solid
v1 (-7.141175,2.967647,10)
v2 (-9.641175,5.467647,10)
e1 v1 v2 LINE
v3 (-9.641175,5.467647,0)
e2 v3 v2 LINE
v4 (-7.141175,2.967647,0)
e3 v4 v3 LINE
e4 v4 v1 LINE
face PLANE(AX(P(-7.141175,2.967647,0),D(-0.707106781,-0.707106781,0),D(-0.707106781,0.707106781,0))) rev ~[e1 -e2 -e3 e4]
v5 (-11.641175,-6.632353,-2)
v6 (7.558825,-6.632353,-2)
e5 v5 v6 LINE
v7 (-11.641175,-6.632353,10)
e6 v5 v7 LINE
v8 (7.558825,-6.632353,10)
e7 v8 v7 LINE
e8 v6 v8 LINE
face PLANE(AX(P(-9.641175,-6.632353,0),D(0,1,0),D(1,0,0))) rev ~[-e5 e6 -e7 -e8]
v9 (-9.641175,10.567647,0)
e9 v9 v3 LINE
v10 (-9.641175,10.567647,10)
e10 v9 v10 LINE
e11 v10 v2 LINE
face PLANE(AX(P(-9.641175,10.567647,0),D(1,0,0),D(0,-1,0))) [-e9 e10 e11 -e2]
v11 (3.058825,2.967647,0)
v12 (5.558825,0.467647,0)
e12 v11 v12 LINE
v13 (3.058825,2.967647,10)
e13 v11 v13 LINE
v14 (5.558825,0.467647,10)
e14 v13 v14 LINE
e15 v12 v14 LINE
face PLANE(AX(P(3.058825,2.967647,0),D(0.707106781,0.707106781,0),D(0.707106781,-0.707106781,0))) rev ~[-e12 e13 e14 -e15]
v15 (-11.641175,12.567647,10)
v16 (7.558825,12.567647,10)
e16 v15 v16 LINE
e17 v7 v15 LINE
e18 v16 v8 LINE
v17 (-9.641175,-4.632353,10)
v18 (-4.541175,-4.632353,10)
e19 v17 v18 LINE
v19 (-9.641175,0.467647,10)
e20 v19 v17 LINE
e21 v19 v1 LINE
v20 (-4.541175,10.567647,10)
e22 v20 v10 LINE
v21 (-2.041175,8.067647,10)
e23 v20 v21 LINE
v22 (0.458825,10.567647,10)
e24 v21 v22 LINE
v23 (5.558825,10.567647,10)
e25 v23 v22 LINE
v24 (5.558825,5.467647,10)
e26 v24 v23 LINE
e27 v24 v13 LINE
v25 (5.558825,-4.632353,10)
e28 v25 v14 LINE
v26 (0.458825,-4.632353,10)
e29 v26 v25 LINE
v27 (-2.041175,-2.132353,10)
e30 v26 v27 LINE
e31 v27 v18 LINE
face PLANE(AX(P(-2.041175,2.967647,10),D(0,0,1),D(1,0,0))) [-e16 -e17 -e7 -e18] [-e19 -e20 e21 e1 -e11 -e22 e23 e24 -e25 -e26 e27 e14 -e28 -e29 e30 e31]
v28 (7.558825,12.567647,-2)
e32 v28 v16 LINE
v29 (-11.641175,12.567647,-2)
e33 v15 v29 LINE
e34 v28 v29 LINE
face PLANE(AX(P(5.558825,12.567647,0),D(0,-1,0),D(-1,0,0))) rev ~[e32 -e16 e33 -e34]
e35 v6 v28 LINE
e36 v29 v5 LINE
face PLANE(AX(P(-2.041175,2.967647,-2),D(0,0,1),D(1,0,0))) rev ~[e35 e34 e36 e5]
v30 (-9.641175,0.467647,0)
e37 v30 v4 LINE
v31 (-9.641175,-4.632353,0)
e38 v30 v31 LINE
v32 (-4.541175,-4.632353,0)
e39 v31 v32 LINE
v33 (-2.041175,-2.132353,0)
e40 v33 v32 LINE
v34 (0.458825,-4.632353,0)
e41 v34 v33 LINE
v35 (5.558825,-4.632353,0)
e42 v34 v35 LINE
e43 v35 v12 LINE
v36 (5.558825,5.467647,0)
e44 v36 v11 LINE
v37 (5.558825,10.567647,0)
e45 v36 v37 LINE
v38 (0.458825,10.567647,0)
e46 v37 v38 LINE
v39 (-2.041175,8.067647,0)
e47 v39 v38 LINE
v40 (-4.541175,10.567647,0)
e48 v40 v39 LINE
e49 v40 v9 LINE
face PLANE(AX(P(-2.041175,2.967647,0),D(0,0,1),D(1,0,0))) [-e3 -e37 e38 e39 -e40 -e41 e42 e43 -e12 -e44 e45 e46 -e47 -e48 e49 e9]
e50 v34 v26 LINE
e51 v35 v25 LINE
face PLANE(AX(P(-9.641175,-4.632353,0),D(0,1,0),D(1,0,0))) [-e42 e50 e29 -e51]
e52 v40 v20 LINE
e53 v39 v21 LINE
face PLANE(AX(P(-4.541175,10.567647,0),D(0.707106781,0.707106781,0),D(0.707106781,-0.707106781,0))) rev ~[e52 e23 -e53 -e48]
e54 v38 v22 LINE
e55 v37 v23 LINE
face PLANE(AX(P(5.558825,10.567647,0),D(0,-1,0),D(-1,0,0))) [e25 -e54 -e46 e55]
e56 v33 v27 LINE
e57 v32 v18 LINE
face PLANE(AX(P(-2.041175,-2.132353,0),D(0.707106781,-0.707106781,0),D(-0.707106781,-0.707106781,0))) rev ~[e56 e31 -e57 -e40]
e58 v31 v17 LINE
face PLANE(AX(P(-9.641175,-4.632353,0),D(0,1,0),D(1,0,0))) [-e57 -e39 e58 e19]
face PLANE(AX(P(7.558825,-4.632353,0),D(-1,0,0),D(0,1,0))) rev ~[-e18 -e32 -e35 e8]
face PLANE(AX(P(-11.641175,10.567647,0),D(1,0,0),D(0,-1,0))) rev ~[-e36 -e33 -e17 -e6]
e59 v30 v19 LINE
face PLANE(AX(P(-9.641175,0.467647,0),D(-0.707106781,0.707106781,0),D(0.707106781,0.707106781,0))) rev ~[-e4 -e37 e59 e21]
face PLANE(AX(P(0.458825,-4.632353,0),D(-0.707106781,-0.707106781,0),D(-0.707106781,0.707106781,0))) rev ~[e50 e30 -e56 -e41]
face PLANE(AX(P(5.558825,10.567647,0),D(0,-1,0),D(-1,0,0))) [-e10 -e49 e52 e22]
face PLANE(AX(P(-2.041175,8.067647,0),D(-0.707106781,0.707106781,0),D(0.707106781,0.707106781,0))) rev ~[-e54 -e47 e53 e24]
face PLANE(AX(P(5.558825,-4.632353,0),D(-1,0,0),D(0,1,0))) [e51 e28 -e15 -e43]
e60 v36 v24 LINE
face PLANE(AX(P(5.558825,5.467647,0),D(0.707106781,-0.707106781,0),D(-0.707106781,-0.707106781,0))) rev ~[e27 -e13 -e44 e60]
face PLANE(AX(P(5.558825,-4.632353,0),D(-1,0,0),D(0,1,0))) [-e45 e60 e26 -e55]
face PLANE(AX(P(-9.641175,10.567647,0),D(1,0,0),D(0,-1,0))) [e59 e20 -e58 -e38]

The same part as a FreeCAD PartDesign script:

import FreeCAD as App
import Part
import Sketcher

V = App.Vector
Q = App.Units.Quantity


def faces_at(feature, points):
    """Names of the faces that lie closest to the given points."""
    faces = feature.Shape.Faces
    near = lambda p: min(range(len(faces)), key=lambda i: faces[i].distToShape(Part.Vertex(*p))[0])
    return sorted({f"Face{near(p) + 1}" for p in points})

doc = App.newDocument("Part")
body = doc.addObject("PartDesign::Body", "Body")

sketch1 = body.newObject("Sketcher::SketchObject", "Sketch")
sketch1.AttachmentSupport = (doc.getObject("XY_Plane"), [""])
sketch1.MapMode = "FlatFace"
sketch1.addGeometry([
    Part.LineSegment(V(-9.641175, 10.567647, 0), V(-9.641175, -4.632353, 0)),
    Part.LineSegment(V(-9.641175, -4.632353, 0), V(5.558825, -4.632353, 0)),
    Part.LineSegment(V(5.558825, -4.632353, 0), V(5.558825, 10.567647, 0)),
    Part.LineSegment(V(5.558825, 10.567647, 0), V(-9.641175, 10.567647, 0)),
], False)
sketch1.addConstraint([
    Sketcher.Constraint("Coincident", 0, 2, 1, 1),
    Sketcher.Constraint("Coincident", 1, 2, 2, 1),
    Sketcher.Constraint("Coincident", 2, 2, 3, 1),
    Sketcher.Constraint("Coincident", 3, 2, 0, 1),
    Sketcher.Constraint("Vertical", 0),
    Sketcher.Constraint("Horizontal", 1),
    Sketcher.Constraint("Vertical", 2),
    Sketcher.Constraint("Horizontal", 3),
    Sketcher.Constraint("Equal", 3, 0),
    Sketcher.Constraint("DistanceX", 1, 1, 1, 2, Q("15.2 mm")),
    Sketcher.Constraint("DistanceX", 0, 2, -1, 1, Q("9.641175 mm")),
    Sketcher.Constraint("DistanceY", 0, 2, -1, 1, Q("4.632353 mm")),
])
pad1 = body.newObject("PartDesign::Pad", "Pad")
pad1.Profile = sketch1
pad1.Length = 10
doc.recompute()

thickness = body.newObject("PartDesign::Thickness", "Thickness")
thickness.Base = (pad1, faces_at(pad1, [(-2.041, 2.968, 10)]))
thickness.Value = 2
thickness.Reversed = False
thickness.Join = "Intersection"

sketch2 = body.newObject("Sketcher::SketchObject", "Sketch001")
sketch2.AttachmentSupport = (doc.getObject("XY_Plane"), [""])
sketch2.MapMode = "FlatFace"
sketch2.addGeometry([
    Part.LineSegment(V(0.458825, 10.567647, 0), V(-4.541175, 10.567647, 0)),
    Part.LineSegment(V(-4.541175, 10.567647, 0), V(-2.041175, 8.067647, 0)),
    Part.LineSegment(V(-2.041175, 8.067647, 0), V(0.458825, 10.567647, 0)),
    Part.LineSegment(V(5.558825, 0.467647, 0), V(5.558825, 5.467647, 0)),
    Part.LineSegment(V(5.558825, 5.467647, 0), V(3.058825, 2.967647, 0)),
    Part.LineSegment(V(3.058825, 2.967647, 0), V(5.558825, 0.467647, 0)),
    Part.LineSegment(V(-7.141175, 2.967647, 0), V(-9.641175, 5.467647, 0)),
    Part.LineSegment(V(-9.641175, 5.467647, 0), V(-9.641175, 0.467647, 0)),
    Part.LineSegment(V(-9.641175, 0.467647, 0), V(-7.141175, 2.967647, 0)),
    Part.LineSegment(V(-2.041175, -2.132353, 0), V(-4.541175, -4.632353, 0)),
    Part.LineSegment(V(-4.541175, -4.632353, 0), V(0.458825, -4.632353, 0)),
    Part.LineSegment(V(0.458825, -4.632353, 0), V(-2.041175, -2.132353, 0)),
], False)
sketch2.addConstraint([
    Sketcher.Constraint("Coincident", 0, 2, 1, 1),
    Sketcher.Constraint("Coincident", 1, 2, 2, 1),
    Sketcher.Constraint("Coincident", 2, 2, 0, 1),
    Sketcher.Constraint("Coincident", 3, 2, 4, 1),
    Sketcher.Constraint("Coincident", 4, 2, 5, 1),
    Sketcher.Constraint("Coincident", 5, 2, 3, 1),
    Sketcher.Constraint("Coincident", 6, 2, 7, 1),
    Sketcher.Constraint("Coincident", 7, 2, 8, 1),
    Sketcher.Constraint("Coincident", 8, 2, 6, 1),
    Sketcher.Constraint("Coincident", 9, 2, 10, 1),
    Sketcher.Constraint("Coincident", 10, 2, 11, 1),
    Sketcher.Constraint("Coincident", 11, 2, 9, 1),
    Sketcher.Constraint("Horizontal", 0),
    Sketcher.Constraint("Vertical", 3),
    Sketcher.Constraint("Vertical", 7),
    Sketcher.Constraint("Horizontal", 10),
    Sketcher.Constraint("Perpendicular", 1, 2),
    Sketcher.Constraint("Parallel", 2, 4),
    Sketcher.Constraint("Perpendicular", 4, 5),
    Sketcher.Constraint("Parallel", 5, 6),
    Sketcher.Constraint("Perpendicular", 6, 8),
    Sketcher.Constraint("Parallel", 8, 9),
    Sketcher.Constraint("Perpendicular", 9, 11),
    Sketcher.Constraint("Horizontal", 3, 2, 6, 2),
    Sketcher.Constraint("Horizontal", 5, 2, 7, 2),
    Sketcher.Constraint("Horizontal", 4, 2, 8, 2),
    Sketcher.Constraint("Vertical", 0, 2, 9, 2),
    Sketcher.Constraint("Vertical", 2, 2, 10, 2),
    Sketcher.Constraint("Equal", 10, 3),
    Sketcher.Constraint("DistanceX", 0, 2, 0, 1, Q("5 mm")),
    Sketcher.Constraint("DistanceX", 2, 2, 3, 2, Q("5.1 mm")),
    Sketcher.Constraint("DistanceY", 3, 2, 2, 2, Q("5.1 mm")),
    Sketcher.Constraint("DistanceX", 6, 2, 0, 2, Q("5.1 mm")),
    Sketcher.Constraint("DistanceY", 9, 2, 7, 2, Q("5.1 mm")),
    Sketcher.Constraint("DistanceX", 0, 2, -1, 1, Q("4.541175 mm")),
    Sketcher.Constraint("DistanceY", -1, 1, 0, 2, Q("10.567647 mm")),
])
pad2 = body.newObject("PartDesign::Pad", "Pad001")
pad2.Profile = sketch2
pad2.Length = 10

doc.recompute()
